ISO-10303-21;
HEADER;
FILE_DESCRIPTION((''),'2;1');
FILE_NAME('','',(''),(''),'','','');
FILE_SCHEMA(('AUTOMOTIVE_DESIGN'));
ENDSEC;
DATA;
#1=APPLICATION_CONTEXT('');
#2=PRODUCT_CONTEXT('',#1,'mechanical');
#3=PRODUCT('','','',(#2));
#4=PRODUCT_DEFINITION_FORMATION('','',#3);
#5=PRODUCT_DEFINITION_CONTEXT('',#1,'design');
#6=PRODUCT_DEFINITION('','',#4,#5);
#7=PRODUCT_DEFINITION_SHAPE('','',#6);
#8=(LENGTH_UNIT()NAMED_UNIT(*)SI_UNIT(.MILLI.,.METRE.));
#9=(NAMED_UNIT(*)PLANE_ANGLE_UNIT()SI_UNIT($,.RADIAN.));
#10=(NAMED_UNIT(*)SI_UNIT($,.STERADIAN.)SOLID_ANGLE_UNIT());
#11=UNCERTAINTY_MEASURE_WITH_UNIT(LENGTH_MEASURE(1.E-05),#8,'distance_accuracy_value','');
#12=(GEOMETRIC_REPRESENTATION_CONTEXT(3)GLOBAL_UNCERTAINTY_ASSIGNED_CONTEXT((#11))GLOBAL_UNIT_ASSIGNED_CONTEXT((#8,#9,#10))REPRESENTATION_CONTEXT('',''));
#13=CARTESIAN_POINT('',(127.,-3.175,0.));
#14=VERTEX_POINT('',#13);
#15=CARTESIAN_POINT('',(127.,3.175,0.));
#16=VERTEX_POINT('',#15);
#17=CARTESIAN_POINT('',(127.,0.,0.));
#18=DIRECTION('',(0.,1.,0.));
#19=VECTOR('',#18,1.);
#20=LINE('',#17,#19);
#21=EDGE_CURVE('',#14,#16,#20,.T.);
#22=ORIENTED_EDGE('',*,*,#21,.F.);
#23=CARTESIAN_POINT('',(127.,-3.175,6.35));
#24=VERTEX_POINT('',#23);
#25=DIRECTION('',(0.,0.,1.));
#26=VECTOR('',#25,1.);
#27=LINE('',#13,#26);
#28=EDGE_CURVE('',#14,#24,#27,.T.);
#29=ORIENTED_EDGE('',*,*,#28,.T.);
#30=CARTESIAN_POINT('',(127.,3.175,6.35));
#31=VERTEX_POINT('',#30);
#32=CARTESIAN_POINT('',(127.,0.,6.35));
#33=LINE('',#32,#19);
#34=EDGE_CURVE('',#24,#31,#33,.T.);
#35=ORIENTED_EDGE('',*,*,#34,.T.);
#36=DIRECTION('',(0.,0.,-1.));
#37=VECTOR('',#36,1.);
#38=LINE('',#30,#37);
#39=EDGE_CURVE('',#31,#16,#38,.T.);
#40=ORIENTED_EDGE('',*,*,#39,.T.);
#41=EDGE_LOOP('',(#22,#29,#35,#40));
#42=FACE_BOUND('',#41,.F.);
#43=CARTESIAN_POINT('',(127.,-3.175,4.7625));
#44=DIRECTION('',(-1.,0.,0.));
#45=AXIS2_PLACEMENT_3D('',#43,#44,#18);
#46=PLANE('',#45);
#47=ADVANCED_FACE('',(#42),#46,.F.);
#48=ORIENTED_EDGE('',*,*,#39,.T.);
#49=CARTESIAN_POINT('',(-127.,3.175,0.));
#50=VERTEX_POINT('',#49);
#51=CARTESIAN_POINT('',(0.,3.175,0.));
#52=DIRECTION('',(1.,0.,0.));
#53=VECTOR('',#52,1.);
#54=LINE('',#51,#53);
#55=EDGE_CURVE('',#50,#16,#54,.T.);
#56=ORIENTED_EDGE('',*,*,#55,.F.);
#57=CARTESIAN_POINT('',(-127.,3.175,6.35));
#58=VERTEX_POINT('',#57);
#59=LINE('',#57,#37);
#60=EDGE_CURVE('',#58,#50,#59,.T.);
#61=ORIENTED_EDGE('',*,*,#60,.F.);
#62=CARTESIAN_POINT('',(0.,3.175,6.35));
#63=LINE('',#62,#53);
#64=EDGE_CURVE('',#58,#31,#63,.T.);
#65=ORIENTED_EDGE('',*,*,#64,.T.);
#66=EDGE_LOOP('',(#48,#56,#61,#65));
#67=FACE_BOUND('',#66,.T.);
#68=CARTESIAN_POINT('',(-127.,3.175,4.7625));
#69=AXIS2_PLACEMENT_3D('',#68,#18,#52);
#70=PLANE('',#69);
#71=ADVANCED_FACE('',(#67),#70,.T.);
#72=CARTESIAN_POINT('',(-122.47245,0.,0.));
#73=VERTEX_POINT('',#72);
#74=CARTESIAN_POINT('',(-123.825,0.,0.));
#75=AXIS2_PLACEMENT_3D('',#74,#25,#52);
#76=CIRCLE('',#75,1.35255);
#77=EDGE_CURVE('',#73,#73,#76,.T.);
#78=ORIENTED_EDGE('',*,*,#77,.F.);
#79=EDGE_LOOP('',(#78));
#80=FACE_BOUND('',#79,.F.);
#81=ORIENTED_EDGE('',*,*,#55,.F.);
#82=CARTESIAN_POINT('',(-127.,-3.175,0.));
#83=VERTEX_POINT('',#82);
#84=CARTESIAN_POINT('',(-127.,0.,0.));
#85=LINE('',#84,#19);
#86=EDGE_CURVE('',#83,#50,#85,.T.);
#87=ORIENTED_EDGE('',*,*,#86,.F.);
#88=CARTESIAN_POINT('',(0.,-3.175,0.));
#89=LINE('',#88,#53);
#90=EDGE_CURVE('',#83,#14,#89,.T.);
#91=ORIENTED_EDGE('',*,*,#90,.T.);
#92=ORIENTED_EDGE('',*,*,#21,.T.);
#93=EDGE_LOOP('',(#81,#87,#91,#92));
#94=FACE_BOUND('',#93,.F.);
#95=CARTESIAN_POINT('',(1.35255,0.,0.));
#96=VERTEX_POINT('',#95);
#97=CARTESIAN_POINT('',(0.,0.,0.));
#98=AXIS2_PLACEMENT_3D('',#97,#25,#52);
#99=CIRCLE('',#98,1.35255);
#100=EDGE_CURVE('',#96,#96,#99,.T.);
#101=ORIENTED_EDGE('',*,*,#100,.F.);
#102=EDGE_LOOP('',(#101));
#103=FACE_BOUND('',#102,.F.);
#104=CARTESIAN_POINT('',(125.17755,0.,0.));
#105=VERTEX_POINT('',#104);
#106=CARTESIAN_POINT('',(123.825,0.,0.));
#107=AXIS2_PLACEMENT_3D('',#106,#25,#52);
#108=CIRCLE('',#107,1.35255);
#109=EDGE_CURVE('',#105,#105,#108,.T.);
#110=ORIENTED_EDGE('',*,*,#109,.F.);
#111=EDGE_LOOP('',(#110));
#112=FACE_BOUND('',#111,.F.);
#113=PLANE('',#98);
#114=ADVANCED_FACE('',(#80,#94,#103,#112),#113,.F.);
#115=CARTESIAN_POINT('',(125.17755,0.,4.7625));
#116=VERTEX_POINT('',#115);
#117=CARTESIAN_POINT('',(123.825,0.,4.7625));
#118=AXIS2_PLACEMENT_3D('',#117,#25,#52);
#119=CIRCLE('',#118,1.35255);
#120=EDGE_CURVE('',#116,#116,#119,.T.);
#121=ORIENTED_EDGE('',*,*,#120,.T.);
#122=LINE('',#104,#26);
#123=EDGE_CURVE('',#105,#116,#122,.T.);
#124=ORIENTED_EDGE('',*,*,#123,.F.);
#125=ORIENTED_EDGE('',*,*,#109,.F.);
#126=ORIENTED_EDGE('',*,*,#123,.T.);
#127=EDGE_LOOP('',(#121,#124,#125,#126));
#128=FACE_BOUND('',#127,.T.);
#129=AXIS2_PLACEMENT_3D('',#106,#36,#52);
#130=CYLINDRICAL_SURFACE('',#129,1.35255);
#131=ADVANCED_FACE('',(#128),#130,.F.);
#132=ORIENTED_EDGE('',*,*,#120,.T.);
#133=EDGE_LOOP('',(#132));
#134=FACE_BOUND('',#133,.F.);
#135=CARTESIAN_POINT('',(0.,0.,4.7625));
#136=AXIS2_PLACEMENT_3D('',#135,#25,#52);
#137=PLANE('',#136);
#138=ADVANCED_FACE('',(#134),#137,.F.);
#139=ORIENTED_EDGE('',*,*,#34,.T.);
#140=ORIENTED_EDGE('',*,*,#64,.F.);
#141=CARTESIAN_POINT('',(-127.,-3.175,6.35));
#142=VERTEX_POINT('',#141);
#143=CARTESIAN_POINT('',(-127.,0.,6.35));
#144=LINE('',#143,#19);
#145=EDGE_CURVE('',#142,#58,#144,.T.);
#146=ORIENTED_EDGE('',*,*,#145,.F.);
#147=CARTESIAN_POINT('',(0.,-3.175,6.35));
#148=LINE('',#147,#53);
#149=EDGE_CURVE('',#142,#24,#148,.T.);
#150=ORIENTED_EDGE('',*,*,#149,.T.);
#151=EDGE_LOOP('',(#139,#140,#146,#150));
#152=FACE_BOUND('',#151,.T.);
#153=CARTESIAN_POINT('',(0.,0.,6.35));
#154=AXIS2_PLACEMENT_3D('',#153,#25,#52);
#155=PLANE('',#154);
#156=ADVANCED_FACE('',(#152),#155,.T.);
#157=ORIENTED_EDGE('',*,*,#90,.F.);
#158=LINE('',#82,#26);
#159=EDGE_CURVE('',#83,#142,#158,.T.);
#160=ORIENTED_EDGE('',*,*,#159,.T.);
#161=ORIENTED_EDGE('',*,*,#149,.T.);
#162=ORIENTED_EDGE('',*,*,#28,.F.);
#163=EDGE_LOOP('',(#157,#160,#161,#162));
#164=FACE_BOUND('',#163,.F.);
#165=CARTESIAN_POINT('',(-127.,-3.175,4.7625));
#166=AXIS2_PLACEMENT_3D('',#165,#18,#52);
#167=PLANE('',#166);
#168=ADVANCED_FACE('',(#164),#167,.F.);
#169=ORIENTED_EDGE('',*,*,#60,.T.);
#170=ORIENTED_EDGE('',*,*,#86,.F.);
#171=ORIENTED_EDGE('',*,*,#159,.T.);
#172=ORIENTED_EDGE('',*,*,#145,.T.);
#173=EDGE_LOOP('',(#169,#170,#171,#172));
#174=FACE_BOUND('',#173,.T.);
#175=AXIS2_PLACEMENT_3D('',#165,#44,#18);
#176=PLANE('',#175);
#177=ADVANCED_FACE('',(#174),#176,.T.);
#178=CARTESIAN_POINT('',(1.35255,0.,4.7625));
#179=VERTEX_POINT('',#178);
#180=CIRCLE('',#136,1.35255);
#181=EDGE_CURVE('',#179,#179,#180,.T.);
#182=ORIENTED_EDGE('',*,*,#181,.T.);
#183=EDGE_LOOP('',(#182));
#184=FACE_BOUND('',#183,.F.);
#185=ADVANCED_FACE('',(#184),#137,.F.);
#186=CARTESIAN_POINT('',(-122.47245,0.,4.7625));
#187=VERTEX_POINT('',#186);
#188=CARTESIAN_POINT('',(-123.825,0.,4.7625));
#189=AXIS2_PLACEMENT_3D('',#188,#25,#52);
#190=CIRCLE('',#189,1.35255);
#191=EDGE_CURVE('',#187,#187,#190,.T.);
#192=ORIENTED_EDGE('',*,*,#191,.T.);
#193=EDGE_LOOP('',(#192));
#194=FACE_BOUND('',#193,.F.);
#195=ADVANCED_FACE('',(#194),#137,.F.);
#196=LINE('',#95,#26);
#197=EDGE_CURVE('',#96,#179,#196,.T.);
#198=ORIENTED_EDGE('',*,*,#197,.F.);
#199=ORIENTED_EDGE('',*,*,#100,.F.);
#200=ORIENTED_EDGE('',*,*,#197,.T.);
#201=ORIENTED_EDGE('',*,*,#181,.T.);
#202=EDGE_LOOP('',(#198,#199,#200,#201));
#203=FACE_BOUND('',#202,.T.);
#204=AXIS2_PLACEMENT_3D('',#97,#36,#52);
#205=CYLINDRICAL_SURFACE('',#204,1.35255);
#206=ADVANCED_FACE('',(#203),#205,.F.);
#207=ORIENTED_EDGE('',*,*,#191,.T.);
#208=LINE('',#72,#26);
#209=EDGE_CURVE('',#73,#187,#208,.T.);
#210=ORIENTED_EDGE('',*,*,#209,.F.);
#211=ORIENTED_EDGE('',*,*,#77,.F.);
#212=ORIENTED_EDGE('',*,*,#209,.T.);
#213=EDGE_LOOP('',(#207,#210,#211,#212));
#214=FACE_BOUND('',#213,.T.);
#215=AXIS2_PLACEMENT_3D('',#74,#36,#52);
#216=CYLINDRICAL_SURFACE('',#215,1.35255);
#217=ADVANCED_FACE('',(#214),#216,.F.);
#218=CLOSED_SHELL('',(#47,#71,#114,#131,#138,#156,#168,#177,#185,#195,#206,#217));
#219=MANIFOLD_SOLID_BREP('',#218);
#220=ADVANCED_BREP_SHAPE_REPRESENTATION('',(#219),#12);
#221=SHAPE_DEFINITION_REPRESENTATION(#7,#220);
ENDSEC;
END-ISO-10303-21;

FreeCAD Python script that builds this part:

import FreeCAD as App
import Part
import Sketcher

V = App.Vector
Q = App.Units.Quantity

doc = App.newDocument("Part")
params = doc.addObject("Spreadsheet::Sheet", "Params")
for row, (alias, value) in enumerate([
    ("sketch1_width", "10 in"),
    ("sketch1_height", "0.25 in"),
    ("pad1_length", "0.1875 in"),
    ("sketch2_width", "10 in"),
    ("sketch2_height", "0.25 in"),
    ("pad2_length", "0.0625 in"),
], start=1):
    params.set(f"A{row}", alias)
    params.set(f"B{row}", "=" + value)
    params.setAlias(f"B{row}", alias)

body = doc.addObject("PartDesign::Body", "Body")

sketch1 = body.newObject("Sketcher::SketchObject", "Sketch")
sketch1.AttachmentSupport = (doc.getObject("XY_Plane"), [""])
sketch1.MapMode = "FlatFace"
sketch1.addGeometry(Part.LineSegment(V(-127, 3.2, 0), V(-127, -3.2, 0)), False)
sketch1.addGeometry(Part.LineSegment(V(-127, -3.2, 0), V(127, -3.2, 0)), False)
sketch1.addGeometry(Part.LineSegment(V(127, -3.2, 0), V(127, 3.2, 0)), False)
sketch1.addGeometry(Part.LineSegment(V(127, 3.2, 0), V(-127, 3.2, 0)), False)
sketch1.addGeometry(Part.Circle(V(-123.8, 0, 0), V(0, 0, 1), 1.4), False)
sketch1.addGeometry(Part.Circle(V(0, 0, 0), V(0, 0, 1), 1.4), False)
sketch1.addGeometry(Part.Circle(V(123.8, 0, 0), V(0, 0, 1), 1.4), False)
sketch1.addConstraint(Sketcher.Constraint("Coincident", 0, 2, 1, 1))
sketch1.addConstraint(Sketcher.Constraint("Coincident", 1, 2, 2, 1))
sketch1.addConstraint(Sketcher.Constraint("Coincident", 2, 2, 3, 1))
sketch1.addConstraint(Sketcher.Constraint("Coincident", 3, 2, 0, 1))
sketch1.addConstraint(Sketcher.Constraint("Vertical", 0))
sketch1.addConstraint(Sketcher.Constraint("Horizontal", 1))
sketch1.addConstraint(Sketcher.Constraint("Vertical", 2))
sketch1.addConstraint(Sketcher.Constraint("Horizontal", 3))
sketch1.addConstraint(Sketcher.Constraint("Coincident", 5, 3, -1, 1))
sketch1.addConstraint(Sketcher.Constraint("Equal", 4, 5))
sketch1.addConstraint(Sketcher.Constraint("Equal", 5, 6))
sketch1.addConstraint(Sketcher.Constraint("Symmetric", 4, 3, 6, 3, -1, 1))
sketch1.addConstraint(Sketcher.Constraint("Symmetric", 0, 2, 2, 2, -1, 1))
sketch1.addConstraint(Sketcher.Constraint("PointOnObject", 4, 3, -1))
sketch1.addConstraint(Sketcher.Constraint("DistanceX", 1, 1, 1, 2, Q("10 in")))
sketch1.addConstraint(Sketcher.Constraint("Diameter", 4, Q("0.1065 in")))
sketch1.addConstraint(Sketcher.Constraint("DistanceY", 0, 2, 0, 1, Q("0.25 in")))
sketch1.addConstraint(Sketcher.Constraint("DistanceX", 4, 3, 6, 3, Q("9.75 in")))
sketch1.setExpression("Constraints[14]", "Params.sketch1_width")
sketch1.setExpression("Constraints[16]", "Params.sketch1_height")
pad1 = body.newObject("PartDesign::Pad", "Pad")
pad1.Profile = sketch1
pad1.setExpression("Length", "Params.pad1_length")

sketch2 = body.newObject("Sketcher::SketchObject", "Sketch001")
sketch2.AttachmentSupport = (doc.getObject("XY_Plane"), [""])
sketch2.MapMode = "FlatFace"
sketch2.AttachmentOffset = App.Placement(V(0, 0, 0.1875 * 25.4), App.Rotation())
sketch2.addGeometry(Part.LineSegment(V(-127, 3, 0), V(-127, -3, 0)), False)
sketch2.addGeometry(Part.LineSegment(V(-127, -3, 0), V(127, -3, 0)), False)
sketch2.addGeometry(Part.LineSegment(V(127, -3, 0), V(127, 3, 0)), False)
sketch2.addGeometry(Part.LineSegment(V(127, 3, 0), V(-127, 3, 0)), False)
sketch2.addConstraint(Sketcher.Constraint("Coincident", 0, 2, 1, 1))
sketch2.addConstraint(Sketcher.Constraint("Coincident", 1, 2, 2, 1))
sketch2.addConstraint(Sketcher.Constraint("Coincident", 2, 2, 3, 1))
sketch2.addConstraint(Sketcher.Constraint("Coincident", 3, 2, 0, 1))
sketch2.addConstraint(Sketcher.Constraint("Vertical", 0))
sketch2.addConstraint(Sketcher.Constraint("Horizontal", 1))
sketch2.addConstraint(Sketcher.Constraint("Vertical", 2))
sketch2.addConstraint(Sketcher.Constraint("Horizontal", 3))
sketch2.addConstraint(Sketcher.Constraint("Symmetric", 0, 2, 2, 2, -1, 1))
sketch2.addConstraint(Sketcher.Constraint("DistanceX", 1, 1, 1, 2, Q("10 in")))
sketch2.addConstraint(Sketcher.Constraint("DistanceY", 0, 2, 0, 1, Q("0.25 in")))
sketch2.setExpression("Constraints[9]", "Params.sketch2_width")
sketch2.setExpression("Constraints[10]", "Params.sketch2_height")
pad2 = body.newObject("PartDesign::Pad", "Pad001")
pad2.Profile = sketch2
pad2.setExpression("Length", "Params.pad2_length")

doc.recompute()
